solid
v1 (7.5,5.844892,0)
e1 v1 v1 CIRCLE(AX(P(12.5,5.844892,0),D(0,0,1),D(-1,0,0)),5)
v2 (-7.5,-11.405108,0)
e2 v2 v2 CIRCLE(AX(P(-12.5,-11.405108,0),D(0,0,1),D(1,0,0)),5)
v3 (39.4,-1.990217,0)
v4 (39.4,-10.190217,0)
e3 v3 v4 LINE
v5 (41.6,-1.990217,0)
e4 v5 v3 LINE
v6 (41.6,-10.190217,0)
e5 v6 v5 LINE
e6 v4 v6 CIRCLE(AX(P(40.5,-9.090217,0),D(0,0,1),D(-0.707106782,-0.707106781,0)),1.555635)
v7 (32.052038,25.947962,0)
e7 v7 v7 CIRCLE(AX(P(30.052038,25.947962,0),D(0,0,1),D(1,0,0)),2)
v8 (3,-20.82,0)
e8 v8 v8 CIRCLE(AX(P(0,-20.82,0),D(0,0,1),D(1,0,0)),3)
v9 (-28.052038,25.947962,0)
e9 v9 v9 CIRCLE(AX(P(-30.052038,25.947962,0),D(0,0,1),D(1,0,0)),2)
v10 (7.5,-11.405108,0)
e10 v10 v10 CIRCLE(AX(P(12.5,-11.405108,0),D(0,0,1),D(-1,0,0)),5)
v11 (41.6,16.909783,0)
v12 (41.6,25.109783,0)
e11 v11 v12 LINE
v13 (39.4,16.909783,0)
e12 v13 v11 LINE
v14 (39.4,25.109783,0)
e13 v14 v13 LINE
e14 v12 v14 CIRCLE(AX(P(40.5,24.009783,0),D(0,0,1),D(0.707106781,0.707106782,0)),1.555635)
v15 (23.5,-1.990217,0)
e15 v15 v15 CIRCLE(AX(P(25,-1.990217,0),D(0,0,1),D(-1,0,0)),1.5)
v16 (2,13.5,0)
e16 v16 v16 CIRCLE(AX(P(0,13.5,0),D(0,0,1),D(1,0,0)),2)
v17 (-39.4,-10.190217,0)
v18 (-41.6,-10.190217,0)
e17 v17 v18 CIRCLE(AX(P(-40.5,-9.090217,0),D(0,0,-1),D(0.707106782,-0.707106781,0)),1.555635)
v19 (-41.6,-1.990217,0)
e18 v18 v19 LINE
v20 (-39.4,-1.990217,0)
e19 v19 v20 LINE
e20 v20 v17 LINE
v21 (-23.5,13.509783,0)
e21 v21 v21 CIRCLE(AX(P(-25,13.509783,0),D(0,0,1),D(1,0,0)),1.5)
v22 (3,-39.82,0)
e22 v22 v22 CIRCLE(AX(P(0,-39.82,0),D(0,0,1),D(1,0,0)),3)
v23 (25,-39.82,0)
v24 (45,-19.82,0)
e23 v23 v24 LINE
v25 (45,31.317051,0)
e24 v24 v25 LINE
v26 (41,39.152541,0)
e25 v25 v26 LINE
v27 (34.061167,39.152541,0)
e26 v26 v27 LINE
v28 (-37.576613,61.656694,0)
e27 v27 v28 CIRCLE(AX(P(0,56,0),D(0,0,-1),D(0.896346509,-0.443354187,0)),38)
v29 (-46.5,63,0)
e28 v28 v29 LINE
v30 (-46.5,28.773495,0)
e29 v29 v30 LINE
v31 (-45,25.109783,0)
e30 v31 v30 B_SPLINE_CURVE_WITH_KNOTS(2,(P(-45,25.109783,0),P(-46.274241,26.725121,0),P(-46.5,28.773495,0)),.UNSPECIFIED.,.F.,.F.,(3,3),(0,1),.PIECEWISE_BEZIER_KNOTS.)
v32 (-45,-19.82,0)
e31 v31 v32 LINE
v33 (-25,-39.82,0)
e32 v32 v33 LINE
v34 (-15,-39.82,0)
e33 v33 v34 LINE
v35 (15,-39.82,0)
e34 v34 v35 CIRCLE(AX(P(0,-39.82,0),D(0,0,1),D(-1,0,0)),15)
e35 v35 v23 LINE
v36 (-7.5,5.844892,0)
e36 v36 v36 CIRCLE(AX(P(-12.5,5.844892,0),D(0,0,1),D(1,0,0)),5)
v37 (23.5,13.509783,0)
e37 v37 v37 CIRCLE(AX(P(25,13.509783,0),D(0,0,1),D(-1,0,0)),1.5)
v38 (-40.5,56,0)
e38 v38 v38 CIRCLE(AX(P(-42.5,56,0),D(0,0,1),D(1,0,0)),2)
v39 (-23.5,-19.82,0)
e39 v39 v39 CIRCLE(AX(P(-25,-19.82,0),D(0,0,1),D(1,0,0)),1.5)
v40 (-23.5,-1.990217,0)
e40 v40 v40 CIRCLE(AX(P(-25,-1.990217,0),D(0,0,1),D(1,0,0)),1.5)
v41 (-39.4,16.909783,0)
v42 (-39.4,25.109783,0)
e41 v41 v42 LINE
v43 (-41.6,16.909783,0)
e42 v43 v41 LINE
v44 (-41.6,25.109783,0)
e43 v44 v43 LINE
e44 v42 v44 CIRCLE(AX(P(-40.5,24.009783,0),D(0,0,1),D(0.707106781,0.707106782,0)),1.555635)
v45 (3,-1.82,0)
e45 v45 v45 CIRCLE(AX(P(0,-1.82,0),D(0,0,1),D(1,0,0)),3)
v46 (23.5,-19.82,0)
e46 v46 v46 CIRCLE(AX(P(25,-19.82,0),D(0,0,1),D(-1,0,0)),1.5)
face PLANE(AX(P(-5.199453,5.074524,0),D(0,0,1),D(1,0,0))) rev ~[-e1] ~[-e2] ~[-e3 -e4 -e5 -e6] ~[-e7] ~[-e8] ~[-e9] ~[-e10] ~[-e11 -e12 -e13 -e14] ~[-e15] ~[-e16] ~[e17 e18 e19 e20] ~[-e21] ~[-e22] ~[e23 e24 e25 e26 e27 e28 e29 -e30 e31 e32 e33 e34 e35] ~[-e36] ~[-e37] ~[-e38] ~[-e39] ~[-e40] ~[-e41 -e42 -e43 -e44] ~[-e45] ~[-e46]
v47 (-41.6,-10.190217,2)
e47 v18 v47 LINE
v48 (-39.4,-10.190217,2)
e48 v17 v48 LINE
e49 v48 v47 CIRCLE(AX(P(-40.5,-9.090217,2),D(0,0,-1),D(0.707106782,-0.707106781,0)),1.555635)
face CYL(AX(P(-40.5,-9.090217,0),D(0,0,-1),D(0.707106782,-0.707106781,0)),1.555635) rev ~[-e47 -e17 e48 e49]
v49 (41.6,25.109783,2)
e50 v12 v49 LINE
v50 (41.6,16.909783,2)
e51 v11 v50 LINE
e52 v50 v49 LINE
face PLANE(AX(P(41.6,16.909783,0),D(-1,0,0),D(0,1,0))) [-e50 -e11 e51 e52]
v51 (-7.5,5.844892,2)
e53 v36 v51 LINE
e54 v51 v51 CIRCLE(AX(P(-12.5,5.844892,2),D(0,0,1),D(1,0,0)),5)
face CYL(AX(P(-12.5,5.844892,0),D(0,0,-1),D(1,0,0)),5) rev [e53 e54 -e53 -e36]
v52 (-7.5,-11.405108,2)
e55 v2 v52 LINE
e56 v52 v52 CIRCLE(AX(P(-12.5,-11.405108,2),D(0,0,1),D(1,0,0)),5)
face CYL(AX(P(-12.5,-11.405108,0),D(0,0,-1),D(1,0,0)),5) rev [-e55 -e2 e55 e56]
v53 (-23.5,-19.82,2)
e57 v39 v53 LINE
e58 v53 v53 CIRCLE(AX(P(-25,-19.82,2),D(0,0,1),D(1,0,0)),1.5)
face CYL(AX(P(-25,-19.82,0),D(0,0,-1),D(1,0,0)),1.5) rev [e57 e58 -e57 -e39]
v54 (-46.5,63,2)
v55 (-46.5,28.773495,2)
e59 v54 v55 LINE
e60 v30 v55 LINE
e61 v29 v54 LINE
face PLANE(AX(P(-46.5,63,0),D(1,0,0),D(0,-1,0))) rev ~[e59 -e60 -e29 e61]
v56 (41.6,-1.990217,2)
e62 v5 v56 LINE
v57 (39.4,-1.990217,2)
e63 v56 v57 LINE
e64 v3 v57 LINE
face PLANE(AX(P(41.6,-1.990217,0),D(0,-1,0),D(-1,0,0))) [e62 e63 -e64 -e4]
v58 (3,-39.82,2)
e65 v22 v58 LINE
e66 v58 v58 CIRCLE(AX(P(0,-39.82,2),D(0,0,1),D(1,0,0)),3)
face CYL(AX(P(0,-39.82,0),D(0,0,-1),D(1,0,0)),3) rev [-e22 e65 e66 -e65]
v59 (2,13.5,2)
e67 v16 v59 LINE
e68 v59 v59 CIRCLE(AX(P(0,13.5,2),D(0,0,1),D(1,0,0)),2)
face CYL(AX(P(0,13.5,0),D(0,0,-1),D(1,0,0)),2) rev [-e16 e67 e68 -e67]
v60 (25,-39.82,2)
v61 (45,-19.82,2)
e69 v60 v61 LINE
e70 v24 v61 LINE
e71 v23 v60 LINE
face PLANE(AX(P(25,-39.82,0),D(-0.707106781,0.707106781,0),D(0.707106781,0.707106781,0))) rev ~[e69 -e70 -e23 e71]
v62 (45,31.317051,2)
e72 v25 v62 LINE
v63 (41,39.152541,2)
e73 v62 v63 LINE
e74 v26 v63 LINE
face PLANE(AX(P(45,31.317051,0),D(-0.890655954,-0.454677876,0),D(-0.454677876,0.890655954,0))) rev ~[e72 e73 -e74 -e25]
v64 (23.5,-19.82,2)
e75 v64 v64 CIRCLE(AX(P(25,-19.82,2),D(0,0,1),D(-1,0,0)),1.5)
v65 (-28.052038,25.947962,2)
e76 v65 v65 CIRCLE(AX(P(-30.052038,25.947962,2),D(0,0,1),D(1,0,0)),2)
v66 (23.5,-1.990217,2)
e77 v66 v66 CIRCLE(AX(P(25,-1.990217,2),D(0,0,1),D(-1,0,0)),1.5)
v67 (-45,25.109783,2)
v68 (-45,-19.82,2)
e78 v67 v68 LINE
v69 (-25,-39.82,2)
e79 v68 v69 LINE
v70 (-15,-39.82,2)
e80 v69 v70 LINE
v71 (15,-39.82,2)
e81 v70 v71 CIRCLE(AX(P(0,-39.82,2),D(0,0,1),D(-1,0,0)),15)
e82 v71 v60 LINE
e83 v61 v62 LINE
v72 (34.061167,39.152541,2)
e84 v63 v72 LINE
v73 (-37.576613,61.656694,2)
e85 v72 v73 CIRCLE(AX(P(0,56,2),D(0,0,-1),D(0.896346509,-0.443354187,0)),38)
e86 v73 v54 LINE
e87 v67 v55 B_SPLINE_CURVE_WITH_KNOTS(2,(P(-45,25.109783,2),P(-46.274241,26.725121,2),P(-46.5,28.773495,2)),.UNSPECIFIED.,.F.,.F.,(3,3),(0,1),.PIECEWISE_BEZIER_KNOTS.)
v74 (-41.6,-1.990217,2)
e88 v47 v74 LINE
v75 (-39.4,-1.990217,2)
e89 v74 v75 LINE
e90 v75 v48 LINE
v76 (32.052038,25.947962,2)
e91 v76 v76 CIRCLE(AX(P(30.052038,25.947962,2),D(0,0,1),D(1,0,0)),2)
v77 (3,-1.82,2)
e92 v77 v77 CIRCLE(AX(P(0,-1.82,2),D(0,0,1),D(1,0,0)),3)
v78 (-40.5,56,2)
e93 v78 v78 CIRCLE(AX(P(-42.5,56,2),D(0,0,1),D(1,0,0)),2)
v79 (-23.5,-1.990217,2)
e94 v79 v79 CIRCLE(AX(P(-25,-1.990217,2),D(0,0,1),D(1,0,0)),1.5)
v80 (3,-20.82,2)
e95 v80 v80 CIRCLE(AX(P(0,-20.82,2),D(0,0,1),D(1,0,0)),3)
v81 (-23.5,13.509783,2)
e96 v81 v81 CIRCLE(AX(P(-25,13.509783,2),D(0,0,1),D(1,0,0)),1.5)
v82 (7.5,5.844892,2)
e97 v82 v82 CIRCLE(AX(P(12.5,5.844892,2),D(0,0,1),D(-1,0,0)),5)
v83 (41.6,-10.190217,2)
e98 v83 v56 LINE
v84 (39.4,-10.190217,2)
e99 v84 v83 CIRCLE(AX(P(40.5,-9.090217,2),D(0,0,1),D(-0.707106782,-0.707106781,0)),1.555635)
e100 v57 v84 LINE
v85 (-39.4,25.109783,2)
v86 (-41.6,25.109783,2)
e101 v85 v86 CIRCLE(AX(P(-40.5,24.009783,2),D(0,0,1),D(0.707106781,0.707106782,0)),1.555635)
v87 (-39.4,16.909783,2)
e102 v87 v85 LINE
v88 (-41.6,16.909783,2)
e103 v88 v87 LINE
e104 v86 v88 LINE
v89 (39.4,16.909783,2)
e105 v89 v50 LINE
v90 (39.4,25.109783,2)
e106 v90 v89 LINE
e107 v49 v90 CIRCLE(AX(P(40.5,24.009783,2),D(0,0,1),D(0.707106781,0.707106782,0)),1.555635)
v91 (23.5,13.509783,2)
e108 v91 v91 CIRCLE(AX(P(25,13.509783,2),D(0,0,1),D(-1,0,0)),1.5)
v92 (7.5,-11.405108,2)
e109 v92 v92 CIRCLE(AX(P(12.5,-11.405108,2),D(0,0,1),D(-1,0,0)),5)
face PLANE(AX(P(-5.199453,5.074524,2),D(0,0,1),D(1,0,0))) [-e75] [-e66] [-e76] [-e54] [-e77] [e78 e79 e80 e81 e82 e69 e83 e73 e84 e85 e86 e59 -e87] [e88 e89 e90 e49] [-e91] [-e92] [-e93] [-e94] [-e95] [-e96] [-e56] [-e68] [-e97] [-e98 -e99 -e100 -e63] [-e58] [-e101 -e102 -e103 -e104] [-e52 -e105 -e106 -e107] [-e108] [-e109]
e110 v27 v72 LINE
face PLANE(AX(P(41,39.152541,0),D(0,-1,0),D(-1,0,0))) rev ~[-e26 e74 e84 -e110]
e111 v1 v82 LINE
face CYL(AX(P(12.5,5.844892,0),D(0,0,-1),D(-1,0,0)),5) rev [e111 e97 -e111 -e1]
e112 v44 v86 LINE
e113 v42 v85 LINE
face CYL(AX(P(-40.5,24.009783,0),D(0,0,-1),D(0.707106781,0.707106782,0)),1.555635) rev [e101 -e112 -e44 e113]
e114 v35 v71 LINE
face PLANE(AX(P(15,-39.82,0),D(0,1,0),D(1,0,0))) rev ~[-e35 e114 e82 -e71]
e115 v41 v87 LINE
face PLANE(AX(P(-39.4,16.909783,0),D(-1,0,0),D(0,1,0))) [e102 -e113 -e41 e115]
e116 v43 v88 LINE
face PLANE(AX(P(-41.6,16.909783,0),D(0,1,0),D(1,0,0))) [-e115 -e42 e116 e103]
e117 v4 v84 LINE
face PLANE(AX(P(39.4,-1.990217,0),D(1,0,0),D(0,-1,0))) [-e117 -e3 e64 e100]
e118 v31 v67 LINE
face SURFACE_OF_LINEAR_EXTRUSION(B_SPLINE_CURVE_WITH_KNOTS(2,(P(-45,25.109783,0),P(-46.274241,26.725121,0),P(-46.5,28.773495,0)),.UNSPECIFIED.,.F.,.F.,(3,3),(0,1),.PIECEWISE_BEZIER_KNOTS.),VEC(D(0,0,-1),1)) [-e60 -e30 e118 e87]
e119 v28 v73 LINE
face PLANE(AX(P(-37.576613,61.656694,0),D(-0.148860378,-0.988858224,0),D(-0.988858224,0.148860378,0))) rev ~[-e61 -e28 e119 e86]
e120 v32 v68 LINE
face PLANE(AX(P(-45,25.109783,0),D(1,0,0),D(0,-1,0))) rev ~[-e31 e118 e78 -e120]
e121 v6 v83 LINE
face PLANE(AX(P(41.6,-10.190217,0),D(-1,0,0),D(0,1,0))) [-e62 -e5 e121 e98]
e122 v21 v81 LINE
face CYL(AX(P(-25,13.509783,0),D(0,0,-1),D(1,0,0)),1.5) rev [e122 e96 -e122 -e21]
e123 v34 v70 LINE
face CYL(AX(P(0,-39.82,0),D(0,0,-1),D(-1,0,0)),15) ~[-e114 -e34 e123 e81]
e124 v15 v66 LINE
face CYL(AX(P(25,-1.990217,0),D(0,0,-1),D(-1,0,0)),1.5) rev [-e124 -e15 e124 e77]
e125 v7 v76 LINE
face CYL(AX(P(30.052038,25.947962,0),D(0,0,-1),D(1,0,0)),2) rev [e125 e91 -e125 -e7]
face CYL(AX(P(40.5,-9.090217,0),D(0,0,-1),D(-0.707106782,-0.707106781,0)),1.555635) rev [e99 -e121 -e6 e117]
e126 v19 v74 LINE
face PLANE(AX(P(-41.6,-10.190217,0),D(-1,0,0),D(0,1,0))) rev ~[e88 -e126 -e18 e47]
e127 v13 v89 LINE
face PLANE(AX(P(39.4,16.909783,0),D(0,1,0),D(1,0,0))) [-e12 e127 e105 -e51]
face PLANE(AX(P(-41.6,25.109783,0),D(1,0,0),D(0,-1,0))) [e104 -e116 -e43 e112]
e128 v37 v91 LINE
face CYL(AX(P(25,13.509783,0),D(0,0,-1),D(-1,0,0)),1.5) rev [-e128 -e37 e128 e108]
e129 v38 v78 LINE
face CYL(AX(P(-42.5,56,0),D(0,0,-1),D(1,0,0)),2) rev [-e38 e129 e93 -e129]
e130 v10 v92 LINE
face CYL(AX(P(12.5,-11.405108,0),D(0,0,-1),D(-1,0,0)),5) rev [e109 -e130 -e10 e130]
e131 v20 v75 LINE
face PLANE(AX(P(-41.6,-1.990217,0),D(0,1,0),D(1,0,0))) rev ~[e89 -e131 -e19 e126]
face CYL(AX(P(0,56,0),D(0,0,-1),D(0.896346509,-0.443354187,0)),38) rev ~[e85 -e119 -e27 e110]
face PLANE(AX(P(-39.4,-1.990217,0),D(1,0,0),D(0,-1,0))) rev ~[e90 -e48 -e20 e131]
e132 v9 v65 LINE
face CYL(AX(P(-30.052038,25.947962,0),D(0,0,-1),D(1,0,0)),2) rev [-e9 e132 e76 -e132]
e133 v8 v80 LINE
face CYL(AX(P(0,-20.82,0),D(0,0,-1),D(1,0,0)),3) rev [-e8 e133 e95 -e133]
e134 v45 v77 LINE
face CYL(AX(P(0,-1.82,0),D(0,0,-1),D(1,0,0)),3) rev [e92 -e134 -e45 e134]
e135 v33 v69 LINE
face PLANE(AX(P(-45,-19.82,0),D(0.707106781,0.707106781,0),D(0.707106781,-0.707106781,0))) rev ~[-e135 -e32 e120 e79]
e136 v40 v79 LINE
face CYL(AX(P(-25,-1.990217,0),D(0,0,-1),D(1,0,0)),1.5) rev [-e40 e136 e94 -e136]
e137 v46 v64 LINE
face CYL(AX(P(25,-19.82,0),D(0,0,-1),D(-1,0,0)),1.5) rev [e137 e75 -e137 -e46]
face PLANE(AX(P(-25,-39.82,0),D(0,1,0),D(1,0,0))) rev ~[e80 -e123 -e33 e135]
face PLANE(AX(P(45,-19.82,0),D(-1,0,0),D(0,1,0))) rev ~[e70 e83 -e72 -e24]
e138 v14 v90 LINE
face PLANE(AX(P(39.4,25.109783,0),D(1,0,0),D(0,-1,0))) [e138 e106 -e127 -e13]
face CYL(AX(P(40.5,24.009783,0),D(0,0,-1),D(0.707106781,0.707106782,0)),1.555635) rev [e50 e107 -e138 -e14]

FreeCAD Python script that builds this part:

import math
import FreeCAD as App
import Part
import Sketcher

V = App.Vector
Q = App.Units.Quantity

doc = App.newDocument("Part")
body = doc.addObject("PartDesign::Body", "Body")

sketch1 = doc.addObject("Sketcher::SketchObject", "Sketch")
body.addObject(sketch1)
sketch1.AttachmentSupport = (doc.XY_Plane, [""])
sketch1.MapMode = "FlatFace"
sketch1.addGeometry([
    Part.LineSegment(V(-45, -19.82, 0), V(-25, -39.82, 0)),
    Part.LineSegment(V(-25, -39.82, 0), V(-15, -39.82, 0)),
    Part.ArcOfCircle(Part.Circle(V(0, -39.82, 0), V(0, 0, 1), 15), math.radians(180), math.radians(360)),
    Part.LineSegment(V(15, -39.82, 0), V(25, -39.82, 0)),
    Part.LineSegment(V(25, -39.82, 0), V(45, -19.82, 0)),
    Part.LineSegment(V(45, -19.82, 0), V(45, 31.317051, 0)),
    Part.LineSegment(V(45, 31.317051, 0), V(41, 39.152541, 0)),
    Part.LineSegment(V(41, 39.152541, 0), V(34.061167, 39.152541, 0)),
    Part.ArcOfCircle(Part.Circle(V(0, 56, 0), V(0, 0, 1), 38), math.radians(171.43911), math.radians(333.681912)),
    Part.LineSegment(V(-37.576613, 61.656694, 0), V(-46.5, 63, 0)),
    Part.LineSegment(V(-46.5, 63, 0), V(-46.5, 28.773495, 0)),
    Part.BSplineCurve([V(-45, 25.109783, 0), V(-46.274241, 26.725121, 0), V(-46.5, 28.773495, 0)], [3, 3], [0, 1], False, 2, [1, 1, 1], False),
    Part.LineSegment(V(-45, 25.109783, 0), V(-45, -19.82, 0)),
    Part.Circle(V(-25, -19.82, 0), V(0, 0, 1), 1.5),
    Part.LineSegment(V(-41.6, -10.190217, 0), V(-41.6, -1.990217, 0)),
    Part.LineSegment(V(-41.6, -1.990217, 0), V(-39.4, -1.990217, 0)),
    Part.LineSegment(V(-39.4, -1.990217, 0), V(-39.4, -10.190217, 0)),
    Part.ArcOfCircle(Part.Circle(V(-40.5, -9.090217, 0), V(0, 0, 1), 1.555635), math.radians(-135), math.radians(-45)),
    Part.Circle(V(-25, -1.990217, 0), V(0, 0, 1), 1.5),
    Part.Circle(V(-12.5, -11.405108, 0), V(0, 0, 1), 5),
    Part.Circle(V(-12.5, 5.844892, 0), V(0, 0, 1), 5),
    Part.Circle(V(0, -39.82, 0), V(0, 0, 1), 3),
    Part.Circle(V(0, -20.82, 0), V(0, 0, 1), 3),
    Part.Circle(V(25, -19.82, 0), V(0, 0, 1), 1.5),
    Part.Circle(V(12.5, -11.405108, 0), V(0, 0, 1), 5),
    Part.Circle(V(0, -1.82, 0), V(0, 0, 1), 3),
    Part.Circle(V(12.5, 5.844892, 0), V(0, 0, 1), 5),
    Part.LineSegment(V(41.6, -1.990217, 0), V(41.6, -10.190217, 0)),
    Part.ArcOfCircle(Part.Circle(V(40.5, -9.090217, 0), V(0, 0, 1), 1.555635), math.radians(-135), math.radians(-45)),
    Part.LineSegment(V(39.4, -10.190217, 0), V(39.4, -1.990217, 0)),
    Part.LineSegment(V(39.4, -1.990217, 0), V(41.6, -1.990217, 0)),
    Part.Circle(V(25, -1.990217, 0), V(0, 0, 1), 1.5),
    Part.Circle(V(-25, 13.509783, 0), V(0, 0, 1), 1.5),
    Part.LineSegment(V(-41.6, 16.909783, 0), V(-41.6, 25.109783, 0)),
    Part.ArcOfCircle(Part.Circle(V(-40.5, 24.009783, 0), V(0, 0, 1), 1.555635), math.radians(45), math.radians(135)),
    Part.LineSegment(V(-39.4, 25.109783, 0), V(-39.4, 16.909783, 0)),
    Part.LineSegment(V(-39.4, 16.909783, 0), V(-41.6, 16.909783, 0)),
    Part.Circle(V(-30.052038, 25.947962, 0), V(0, 0, 1), 2),
    Part.Circle(V(-42.5, 56, 0), V(0, 0, 1), 2),
    Part.Circle(V(0, 13.5, 0), V(0, 0, 1), 2),
    Part.Circle(V(25, 13.509783, 0), V(0, 0, 1), 1.5),
    Part.Circle(V(30.052038, 25.947962, 0), V(0, 0, 1), 2),
    Part.LineSegment(V(39.4, 16.909783, 0), V(39.4, 25.109783, 0)),
    Part.ArcOfCircle(Part.Circle(V(40.5, 24.009783, 0), V(0, 0, 1), 1.555635), math.radians(45), math.radians(135)),
    Part.LineSegment(V(41.6, 25.109783, 0), V(41.6, 16.909783, 0)),
    Part.LineSegment(V(41.6, 16.909783, 0), V(39.4, 16.909783, 0)),
], False)
sketch1.addConstraint([
    Sketcher.Constraint("Block", 11),
    Sketcher.Constraint("Coincident", 0, 2, 1, 1),
    Sketcher.Constraint("Coincident", 1, 2, 2, 1),
    Sketcher.Constraint("Coincident", 2, 2, 3, 1),
    Sketcher.Constraint("Coincident", 3, 2, 4, 1),
    Sketcher.Constraint("Coincident", 4, 2, 5, 1),
    Sketcher.Constraint("Coincident", 5, 2, 6, 1),
    Sketcher.Constraint("Coincident", 6, 2, 7, 1),
    Sketcher.Constraint("Coincident", 7, 2, 8, 2),
    Sketcher.Constraint("Coincident", 8, 1, 9, 1),
    Sketcher.Constraint("Coincident", 9, 2, 10, 1),
    Sketcher.Constraint("Coincident", 10, 2, 11, 2),
    Sketcher.Constraint("Coincident", 11, 1, 12, 1),
    Sketcher.Constraint("Coincident", 12, 2, 0, 1),
    Sketcher.Constraint("Coincident", 14, 2, 15, 1),
    Sketcher.Constraint("Coincident", 15, 2, 16, 1),
    Sketcher.Constraint("Coincident", 16, 2, 17, 2),
    Sketcher.Constraint("Coincident", 17, 1, 14, 1),
    Sketcher.Constraint("Coincident", 27, 2, 28, 2),
    Sketcher.Constraint("Coincident", 28, 1, 29, 1),
    Sketcher.Constraint("Coincident", 29, 2, 30, 1),
    Sketcher.Constraint("Coincident", 30, 2, 27, 1),
    Sketcher.Constraint("Coincident", 33, 2, 34, 2),
    Sketcher.Constraint("Coincident", 34, 1, 35, 1),
    Sketcher.Constraint("Coincident", 35, 2, 36, 1),
    Sketcher.Constraint("Coincident", 36, 2, 33, 1),
    Sketcher.Constraint("Coincident", 42, 2, 43, 2),
    Sketcher.Constraint("Coincident", 43, 1, 44, 1),
    Sketcher.Constraint("Coincident", 44, 2, 45, 1),
    Sketcher.Constraint("Coincident", 45, 2, 42, 1),
    Sketcher.Constraint("Horizontal", 1),
    Sketcher.Constraint("Horizontal", 3),
    Sketcher.Constraint("Vertical", 5),
    Sketcher.Constraint("Horizontal", 7),
    Sketcher.Constraint("Vertical", 10),
    Sketcher.Constraint("Vertical", 12),
    Sketcher.Constraint("Vertical", 14),
    Sketcher.Constraint("Horizontal", 15),
    Sketcher.Constraint("Vertical", 16),
    Sketcher.Constraint("Vertical", 27),
    Sketcher.Constraint("Vertical", 29),
    Sketcher.Constraint("Horizontal", 30),
    Sketcher.Constraint("Vertical", 33),
    Sketcher.Constraint("Vertical", 35),
    Sketcher.Constraint("Horizontal", 36),
    Sketcher.Constraint("Vertical", 42),
    Sketcher.Constraint("Vertical", 44),
    Sketcher.Constraint("Horizontal", 45),
    Sketcher.Constraint("Coincident", 21, 3, 2, 3),
    Sketcher.Constraint("Equal", 13, 18),
    Sketcher.Constraint("Equal", 19, 20),
    Sketcher.Constraint("Equal", 21, 22),
    Sketcher.Constraint("Equal", 18, 23),
    Sketcher.Constraint("Equal", 20, 24),
    Sketcher.Constraint("Equal", 22, 25),
    Sketcher.Constraint("Equal", 24, 26),
    Sketcher.Constraint("Equal", 17, 28),
    Sketcher.Constraint("Equal", 23, 31),
    Sketcher.Constraint("Equal", 31, 32),
    Sketcher.Constraint("Equal", 28, 34),
    Sketcher.Constraint("Equal", 37, 38),
    Sketcher.Constraint("Equal", 38, 39),
    Sketcher.Constraint("Equal", 32, 40),
    Sketcher.Constraint("Equal", 39, 41),
    Sketcher.Constraint("Equal", 34, 43),
    Sketcher.Constraint("Symmetric", 13, 3, 23, 3, -2),
    Sketcher.Constraint("Symmetric", 19, 3, 24, 3, -2),
    Sketcher.Constraint("Symmetric", 20, 3, 26, 3, -2),
    Sketcher.Constraint("Symmetric", 17, 3, 28, 3, -2),
    Sketcher.Constraint("Symmetric", 18, 3, 31, 3, -2),
    Sketcher.Constraint("Symmetric", 32, 3, 40, 3, -2),
    Sketcher.Constraint("Symmetric", 37, 3, 41, 3, -2),
    Sketcher.Constraint("Symmetric", 34, 3, 43, 3, -2),
    Sketcher.Constraint("Symmetric", 1, 2, 2, 2, -2),
    Sketcher.Constraint("Symmetric", 4, 2, 12, 2, -2),
    Sketcher.Constraint("Symmetric", 15, 2, 29, 2, -2),
    Sketcher.Constraint("Symmetric", 36, 2, 44, 2, -2),
    Sketcher.Constraint("PointOnObject", 8, 3, -2),
    Sketcher.Constraint("PointOnObject", 22, 3, -2),
    Sketcher.Constraint("PointOnObject", 25, 3, -2),
    Sketcher.Constraint("PointOnObject", 39, 3, -2),
    Sketcher.Constraint("Perpendicular", 0, 4),
    Sketcher.Constraint("Horizontal", 8, 3, 38, 3),
    Sketcher.Constraint("Horizontal", 21, 3, 0, 2),
    Sketcher.Constraint("Horizontal", 23, 3, 4, 2),
    Sketcher.Constraint("Horizontal", 31, 3, 14, 2),
    Sketcher.Constraint("Horizontal", 16, 2, 17, 1),
    Sketcher.Constraint("Horizontal", 17, 1, 27, 2),
    Sketcher.Constraint("Horizontal", 33, 2, 34, 1),
    Sketcher.Constraint("Horizontal", 34, 1, 42, 2),
    Sketcher.Constraint("Vertical", 13, 3, 18, 3),
    Sketcher.Constraint("Vertical", 19, 3, 20, 3),
    Sketcher.Constraint("Vertical", 18, 3, 32, 3),
    Sketcher.Constraint("Vertical", 17, 3, 34, 3),
    Sketcher.Constraint("Vertical", 32, 3, 0, 2),
    Sketcher.Constraint("Vertical", 40, 3, 3, 2),
    Sketcher.Constraint("Vertical", 17, 1, 33, 2),
    Sketcher.Constraint("Equal", 29, 33),
    Sketcher.Constraint("Diameter", 13, Q("3 mm")),
    Sketcher.Constraint("Diameter", 19, Q("10 mm")),
    Sketcher.Constraint("Diameter", 21, Q("6 mm")),
    Sketcher.Constraint("Diameter", 37, Q("4 mm")),
    Sketcher.Constraint("Radius", 2, Q("15 mm")),
    Sketcher.Constraint("Radius", 8, Q("38 mm")),
    Sketcher.Constraint("DistanceX", 1, 1, 1, 2, Q("10 mm")),
    Sketcher.Constraint("DistanceX", 15, 1, 15, 2, Q("2.2 mm")),
    Sketcher.Constraint("DistanceY", 14, 1, 14, 2, Q("8.2 mm")),
    Sketcher.Constraint("DistanceY", -1, 1, 8, 3, Q("56 mm")),
    Sketcher.Constraint("DistanceX", -1, 1, 6, 2, Q("41 mm")),
    Sketcher.Constraint("DistanceY", -1, 1, 9, 2, Q("63 mm")),
    Sketcher.Constraint("DistanceX", 17, 3, 19, 3, Q("28 mm")),
    Sketcher.Constraint("DistanceY", 2, 3, 22, 3, Q("19 mm")),
    Sketcher.Constraint("DistanceX", 19, 3, 24, 3, Q("25 mm")),
    Sketcher.Constraint("DistanceY", 22, 3, 25, 3, Q("19 mm")),
    Sketcher.Constraint("DistanceY", 18, 3, 34, 3, Q("26 mm")),
    Sketcher.Constraint("DistanceX", 38, 3, 34, 3, Q("2 mm")),
    Sketcher.Constraint("DistanceY", -1, 1, 39, 3, Q("13.5 mm")),
    Sketcher.Constraint("DistanceY", 17, 3, 18, 3, Q("7.1 mm")),
    Sketcher.Constraint("DistanceY", 18, 3, 32, 3, Q("15.5 mm")),
    Sketcher.Constraint("DistanceY", 2, 3, -1, 1, Q("39.82 mm")),
    Sketcher.Constraint("DistanceY", 19, 3, 20, 3, Q("17.25 mm")),
    Sketcher.Constraint("DistanceY", 5, 1, 5, 2, Q("51.137051 mm")),
    Sketcher.Constraint("DistanceY", 10, 2, 8, 1, Q("32.8832 mm")),
    Sketcher.Constraint("DistanceX", 7, 2, 7, 1, Q("6.938833 mm")),
    Sketcher.Constraint("DistanceY", 19, 3, -1, 1, Q("11.405108 mm")),
    Sketcher.Constraint("DistanceX", 37, 3, -1, 1, Q("30.052038 mm")),
    Sketcher.Constraint("DistanceY", -1, 1, 37, 3, Q("25.947962 mm")),
    Sketcher.Constraint("DistanceY", 19, 3, 18, 3, Q("9.414892 mm")),
])
pad1 = doc.addObject("PartDesign::Pad", "Pad")
body.addObject(pad1)
pad1.Profile = sketch1
pad1.Length = 2

doc.recompute()
